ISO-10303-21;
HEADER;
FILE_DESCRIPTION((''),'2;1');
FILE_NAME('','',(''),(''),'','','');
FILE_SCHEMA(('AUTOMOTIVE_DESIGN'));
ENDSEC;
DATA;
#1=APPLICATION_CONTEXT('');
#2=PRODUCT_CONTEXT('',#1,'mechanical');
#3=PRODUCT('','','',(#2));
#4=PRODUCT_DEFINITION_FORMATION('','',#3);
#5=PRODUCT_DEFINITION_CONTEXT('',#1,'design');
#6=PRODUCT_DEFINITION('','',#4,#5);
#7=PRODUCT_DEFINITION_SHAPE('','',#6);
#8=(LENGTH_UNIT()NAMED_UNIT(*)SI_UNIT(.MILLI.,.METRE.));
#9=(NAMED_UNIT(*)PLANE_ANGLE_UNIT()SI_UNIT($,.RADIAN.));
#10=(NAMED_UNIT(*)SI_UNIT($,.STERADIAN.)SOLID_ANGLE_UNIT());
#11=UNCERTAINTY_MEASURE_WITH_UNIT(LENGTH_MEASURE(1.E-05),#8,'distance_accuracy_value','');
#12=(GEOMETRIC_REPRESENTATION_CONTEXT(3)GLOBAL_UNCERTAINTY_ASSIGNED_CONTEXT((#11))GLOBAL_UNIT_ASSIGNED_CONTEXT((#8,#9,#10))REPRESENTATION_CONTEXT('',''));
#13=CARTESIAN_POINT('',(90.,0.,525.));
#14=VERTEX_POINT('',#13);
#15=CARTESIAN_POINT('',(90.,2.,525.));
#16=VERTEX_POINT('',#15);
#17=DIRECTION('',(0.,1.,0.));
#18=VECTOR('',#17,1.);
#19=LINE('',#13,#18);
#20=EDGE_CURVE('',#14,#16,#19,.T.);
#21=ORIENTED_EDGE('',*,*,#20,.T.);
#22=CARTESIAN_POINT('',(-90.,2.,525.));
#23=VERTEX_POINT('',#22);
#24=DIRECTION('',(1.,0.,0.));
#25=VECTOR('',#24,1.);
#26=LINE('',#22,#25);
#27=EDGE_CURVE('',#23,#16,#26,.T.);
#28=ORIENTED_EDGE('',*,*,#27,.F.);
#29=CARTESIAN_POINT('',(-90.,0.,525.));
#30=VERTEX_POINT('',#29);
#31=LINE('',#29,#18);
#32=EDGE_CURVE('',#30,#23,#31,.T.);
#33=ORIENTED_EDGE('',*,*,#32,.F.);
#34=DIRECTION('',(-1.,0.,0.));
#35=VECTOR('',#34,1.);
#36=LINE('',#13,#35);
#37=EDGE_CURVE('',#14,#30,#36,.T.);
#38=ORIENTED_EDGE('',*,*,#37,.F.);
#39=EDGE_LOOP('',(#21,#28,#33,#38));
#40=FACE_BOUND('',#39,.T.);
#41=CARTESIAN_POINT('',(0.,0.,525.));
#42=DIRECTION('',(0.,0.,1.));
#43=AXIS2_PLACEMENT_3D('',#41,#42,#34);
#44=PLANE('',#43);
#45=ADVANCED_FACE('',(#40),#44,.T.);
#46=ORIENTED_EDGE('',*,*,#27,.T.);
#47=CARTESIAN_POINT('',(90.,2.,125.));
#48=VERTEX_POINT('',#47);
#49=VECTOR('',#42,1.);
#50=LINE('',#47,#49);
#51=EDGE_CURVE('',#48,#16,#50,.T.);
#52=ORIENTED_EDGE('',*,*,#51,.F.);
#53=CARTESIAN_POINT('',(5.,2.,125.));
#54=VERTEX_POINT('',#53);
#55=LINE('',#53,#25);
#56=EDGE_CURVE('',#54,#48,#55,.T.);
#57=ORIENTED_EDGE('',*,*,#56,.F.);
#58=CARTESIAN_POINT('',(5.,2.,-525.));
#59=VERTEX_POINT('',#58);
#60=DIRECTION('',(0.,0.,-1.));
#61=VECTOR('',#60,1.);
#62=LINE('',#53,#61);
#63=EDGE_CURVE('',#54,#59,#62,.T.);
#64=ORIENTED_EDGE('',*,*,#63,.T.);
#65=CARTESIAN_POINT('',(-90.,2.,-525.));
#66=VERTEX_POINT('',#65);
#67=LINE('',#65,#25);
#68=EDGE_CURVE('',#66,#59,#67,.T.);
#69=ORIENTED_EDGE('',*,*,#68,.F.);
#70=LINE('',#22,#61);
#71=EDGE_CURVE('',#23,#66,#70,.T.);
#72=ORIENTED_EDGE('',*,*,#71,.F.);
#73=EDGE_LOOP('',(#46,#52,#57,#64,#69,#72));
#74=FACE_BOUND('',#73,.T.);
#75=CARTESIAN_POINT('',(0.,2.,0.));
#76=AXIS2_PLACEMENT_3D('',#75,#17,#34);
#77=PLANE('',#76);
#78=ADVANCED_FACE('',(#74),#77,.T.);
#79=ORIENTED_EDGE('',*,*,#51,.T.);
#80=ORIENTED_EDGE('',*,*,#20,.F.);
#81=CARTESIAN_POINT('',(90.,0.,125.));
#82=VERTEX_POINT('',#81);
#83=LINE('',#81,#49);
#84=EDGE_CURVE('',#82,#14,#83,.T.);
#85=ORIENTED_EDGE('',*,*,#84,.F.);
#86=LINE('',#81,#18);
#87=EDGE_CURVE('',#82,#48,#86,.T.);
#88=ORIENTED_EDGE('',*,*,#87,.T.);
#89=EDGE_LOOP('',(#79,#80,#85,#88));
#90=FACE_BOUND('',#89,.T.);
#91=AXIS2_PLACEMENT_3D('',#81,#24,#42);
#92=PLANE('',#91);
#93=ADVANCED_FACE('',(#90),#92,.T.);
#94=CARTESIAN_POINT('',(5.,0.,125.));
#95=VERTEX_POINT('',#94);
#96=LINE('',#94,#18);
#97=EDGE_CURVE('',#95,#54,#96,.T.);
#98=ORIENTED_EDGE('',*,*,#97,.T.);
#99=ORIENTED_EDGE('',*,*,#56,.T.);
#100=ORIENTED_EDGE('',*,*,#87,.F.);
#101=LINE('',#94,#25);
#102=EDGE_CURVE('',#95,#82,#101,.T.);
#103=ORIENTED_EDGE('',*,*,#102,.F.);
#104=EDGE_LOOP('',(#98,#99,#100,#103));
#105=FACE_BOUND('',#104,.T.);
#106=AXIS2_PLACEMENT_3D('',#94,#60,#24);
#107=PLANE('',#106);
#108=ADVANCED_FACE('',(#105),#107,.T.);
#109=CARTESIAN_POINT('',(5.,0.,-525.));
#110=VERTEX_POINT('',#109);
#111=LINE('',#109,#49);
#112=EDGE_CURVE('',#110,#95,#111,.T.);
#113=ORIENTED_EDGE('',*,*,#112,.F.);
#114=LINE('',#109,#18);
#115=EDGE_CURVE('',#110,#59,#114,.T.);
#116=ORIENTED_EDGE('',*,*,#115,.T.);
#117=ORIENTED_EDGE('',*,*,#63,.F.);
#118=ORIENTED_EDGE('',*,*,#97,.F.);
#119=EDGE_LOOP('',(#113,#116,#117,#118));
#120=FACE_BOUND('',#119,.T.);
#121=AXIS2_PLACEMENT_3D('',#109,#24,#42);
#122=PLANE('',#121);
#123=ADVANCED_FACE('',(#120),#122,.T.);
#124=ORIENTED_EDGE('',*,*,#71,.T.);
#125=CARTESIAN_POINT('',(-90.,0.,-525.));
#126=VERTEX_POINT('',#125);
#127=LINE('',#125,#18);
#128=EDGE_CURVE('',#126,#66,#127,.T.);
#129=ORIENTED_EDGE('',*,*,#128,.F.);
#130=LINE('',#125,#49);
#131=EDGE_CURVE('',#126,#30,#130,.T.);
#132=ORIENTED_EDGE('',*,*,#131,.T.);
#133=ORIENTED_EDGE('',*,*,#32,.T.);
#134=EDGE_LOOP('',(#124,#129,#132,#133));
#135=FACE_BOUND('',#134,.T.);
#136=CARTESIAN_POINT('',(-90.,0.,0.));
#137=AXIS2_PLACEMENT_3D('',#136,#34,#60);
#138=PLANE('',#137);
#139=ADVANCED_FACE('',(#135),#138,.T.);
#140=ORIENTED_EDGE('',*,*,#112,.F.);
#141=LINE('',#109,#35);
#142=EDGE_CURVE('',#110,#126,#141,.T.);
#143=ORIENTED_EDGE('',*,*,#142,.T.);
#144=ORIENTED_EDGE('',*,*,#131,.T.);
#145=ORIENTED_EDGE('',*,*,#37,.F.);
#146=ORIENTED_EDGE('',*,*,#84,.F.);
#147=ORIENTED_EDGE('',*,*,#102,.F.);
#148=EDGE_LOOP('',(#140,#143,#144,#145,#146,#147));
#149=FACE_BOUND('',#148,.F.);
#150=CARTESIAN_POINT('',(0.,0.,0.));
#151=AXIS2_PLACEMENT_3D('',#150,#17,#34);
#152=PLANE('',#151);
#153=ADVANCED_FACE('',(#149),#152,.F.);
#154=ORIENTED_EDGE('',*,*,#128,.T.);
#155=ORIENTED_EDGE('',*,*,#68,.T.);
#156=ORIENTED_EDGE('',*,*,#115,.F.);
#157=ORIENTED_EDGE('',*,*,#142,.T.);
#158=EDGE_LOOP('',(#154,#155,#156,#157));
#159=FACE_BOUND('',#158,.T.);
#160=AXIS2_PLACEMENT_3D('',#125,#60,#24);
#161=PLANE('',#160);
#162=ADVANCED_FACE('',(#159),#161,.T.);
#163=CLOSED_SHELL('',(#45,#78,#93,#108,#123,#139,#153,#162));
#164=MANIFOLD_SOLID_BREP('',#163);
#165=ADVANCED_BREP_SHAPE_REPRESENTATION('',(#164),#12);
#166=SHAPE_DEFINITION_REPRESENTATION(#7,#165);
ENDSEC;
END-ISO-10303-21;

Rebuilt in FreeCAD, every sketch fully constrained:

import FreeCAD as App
import Part
import Sketcher
from FreeCAD import Vector

doc = App.newDocument("Part")
body = doc.addObject("PartDesign::Body", "Body")

# Sketch on XZ plane
sketch1 = body.newObject("Sketcher::SketchObject", "Sketch")
sketch1.AttachmentSupport = (doc.getObject("XZ_Plane"), [""])
sketch1.MapMode = "FlatFace"
sketch1.addGeometry([
    Part.LineSegment(Vector(-90, -525, 0), Vector(-90, 525, 0)),  # 0
    Part.LineSegment(Vector(-90, 525, 0), Vector(90, 525, 0)),  # 1
    Part.LineSegment(Vector(90, 525, 0), Vector(90, 125, 0)),  # 2
    Part.LineSegment(Vector(90, 125, 0), Vector(5, 125, 0)),  # 3
    Part.LineSegment(Vector(5, 125, 0), Vector(5, -525, 0)),  # 4
    Part.LineSegment(Vector(5, -525, 0), Vector(-90, -525, 0)),  # 5
], False)
sketch1.addConstraint([
    Sketcher.Constraint("Coincident", 0, 2, 1, 1),
    Sketcher.Constraint("Coincident", 1, 2, 2, 1),
    Sketcher.Constraint("Coincident", 2, 2, 3, 1),
    Sketcher.Constraint("Coincident", 3, 2, 4, 1),
    Sketcher.Constraint("Coincident", 4, 2, 5, 1),
    Sketcher.Constraint("Coincident", 5, 2, 0, 1),
    Sketcher.Constraint("Vertical", 0),
    Sketcher.Constraint("Horizontal", 1),
    Sketcher.Constraint("Vertical", 2),
    Sketcher.Constraint("Horizontal", 3),
    Sketcher.Constraint("Vertical", 4),
    Sketcher.Constraint("Horizontal", 5),
    Sketcher.Constraint("Symmetric", 1, 2, 5, 2, -1, 1),
    Sketcher.Constraint("DistanceX", 1, 1, 1, 2, 180.0),
    Sketcher.Constraint("DistanceX", 5, 2, 5, 1, 95.0),
    Sketcher.Constraint("DistanceY", 0, 1, 0, 2, 1050.0),
    Sketcher.Constraint("DistanceY", 4, 2, 4, 1, 650.0),
])
pad1 = body.newObject("PartDesign::Pad", "Pad")
pad1.Profile = sketch1
pad1.Length = 2
pad1.Reversed = True

doc.recompute()
